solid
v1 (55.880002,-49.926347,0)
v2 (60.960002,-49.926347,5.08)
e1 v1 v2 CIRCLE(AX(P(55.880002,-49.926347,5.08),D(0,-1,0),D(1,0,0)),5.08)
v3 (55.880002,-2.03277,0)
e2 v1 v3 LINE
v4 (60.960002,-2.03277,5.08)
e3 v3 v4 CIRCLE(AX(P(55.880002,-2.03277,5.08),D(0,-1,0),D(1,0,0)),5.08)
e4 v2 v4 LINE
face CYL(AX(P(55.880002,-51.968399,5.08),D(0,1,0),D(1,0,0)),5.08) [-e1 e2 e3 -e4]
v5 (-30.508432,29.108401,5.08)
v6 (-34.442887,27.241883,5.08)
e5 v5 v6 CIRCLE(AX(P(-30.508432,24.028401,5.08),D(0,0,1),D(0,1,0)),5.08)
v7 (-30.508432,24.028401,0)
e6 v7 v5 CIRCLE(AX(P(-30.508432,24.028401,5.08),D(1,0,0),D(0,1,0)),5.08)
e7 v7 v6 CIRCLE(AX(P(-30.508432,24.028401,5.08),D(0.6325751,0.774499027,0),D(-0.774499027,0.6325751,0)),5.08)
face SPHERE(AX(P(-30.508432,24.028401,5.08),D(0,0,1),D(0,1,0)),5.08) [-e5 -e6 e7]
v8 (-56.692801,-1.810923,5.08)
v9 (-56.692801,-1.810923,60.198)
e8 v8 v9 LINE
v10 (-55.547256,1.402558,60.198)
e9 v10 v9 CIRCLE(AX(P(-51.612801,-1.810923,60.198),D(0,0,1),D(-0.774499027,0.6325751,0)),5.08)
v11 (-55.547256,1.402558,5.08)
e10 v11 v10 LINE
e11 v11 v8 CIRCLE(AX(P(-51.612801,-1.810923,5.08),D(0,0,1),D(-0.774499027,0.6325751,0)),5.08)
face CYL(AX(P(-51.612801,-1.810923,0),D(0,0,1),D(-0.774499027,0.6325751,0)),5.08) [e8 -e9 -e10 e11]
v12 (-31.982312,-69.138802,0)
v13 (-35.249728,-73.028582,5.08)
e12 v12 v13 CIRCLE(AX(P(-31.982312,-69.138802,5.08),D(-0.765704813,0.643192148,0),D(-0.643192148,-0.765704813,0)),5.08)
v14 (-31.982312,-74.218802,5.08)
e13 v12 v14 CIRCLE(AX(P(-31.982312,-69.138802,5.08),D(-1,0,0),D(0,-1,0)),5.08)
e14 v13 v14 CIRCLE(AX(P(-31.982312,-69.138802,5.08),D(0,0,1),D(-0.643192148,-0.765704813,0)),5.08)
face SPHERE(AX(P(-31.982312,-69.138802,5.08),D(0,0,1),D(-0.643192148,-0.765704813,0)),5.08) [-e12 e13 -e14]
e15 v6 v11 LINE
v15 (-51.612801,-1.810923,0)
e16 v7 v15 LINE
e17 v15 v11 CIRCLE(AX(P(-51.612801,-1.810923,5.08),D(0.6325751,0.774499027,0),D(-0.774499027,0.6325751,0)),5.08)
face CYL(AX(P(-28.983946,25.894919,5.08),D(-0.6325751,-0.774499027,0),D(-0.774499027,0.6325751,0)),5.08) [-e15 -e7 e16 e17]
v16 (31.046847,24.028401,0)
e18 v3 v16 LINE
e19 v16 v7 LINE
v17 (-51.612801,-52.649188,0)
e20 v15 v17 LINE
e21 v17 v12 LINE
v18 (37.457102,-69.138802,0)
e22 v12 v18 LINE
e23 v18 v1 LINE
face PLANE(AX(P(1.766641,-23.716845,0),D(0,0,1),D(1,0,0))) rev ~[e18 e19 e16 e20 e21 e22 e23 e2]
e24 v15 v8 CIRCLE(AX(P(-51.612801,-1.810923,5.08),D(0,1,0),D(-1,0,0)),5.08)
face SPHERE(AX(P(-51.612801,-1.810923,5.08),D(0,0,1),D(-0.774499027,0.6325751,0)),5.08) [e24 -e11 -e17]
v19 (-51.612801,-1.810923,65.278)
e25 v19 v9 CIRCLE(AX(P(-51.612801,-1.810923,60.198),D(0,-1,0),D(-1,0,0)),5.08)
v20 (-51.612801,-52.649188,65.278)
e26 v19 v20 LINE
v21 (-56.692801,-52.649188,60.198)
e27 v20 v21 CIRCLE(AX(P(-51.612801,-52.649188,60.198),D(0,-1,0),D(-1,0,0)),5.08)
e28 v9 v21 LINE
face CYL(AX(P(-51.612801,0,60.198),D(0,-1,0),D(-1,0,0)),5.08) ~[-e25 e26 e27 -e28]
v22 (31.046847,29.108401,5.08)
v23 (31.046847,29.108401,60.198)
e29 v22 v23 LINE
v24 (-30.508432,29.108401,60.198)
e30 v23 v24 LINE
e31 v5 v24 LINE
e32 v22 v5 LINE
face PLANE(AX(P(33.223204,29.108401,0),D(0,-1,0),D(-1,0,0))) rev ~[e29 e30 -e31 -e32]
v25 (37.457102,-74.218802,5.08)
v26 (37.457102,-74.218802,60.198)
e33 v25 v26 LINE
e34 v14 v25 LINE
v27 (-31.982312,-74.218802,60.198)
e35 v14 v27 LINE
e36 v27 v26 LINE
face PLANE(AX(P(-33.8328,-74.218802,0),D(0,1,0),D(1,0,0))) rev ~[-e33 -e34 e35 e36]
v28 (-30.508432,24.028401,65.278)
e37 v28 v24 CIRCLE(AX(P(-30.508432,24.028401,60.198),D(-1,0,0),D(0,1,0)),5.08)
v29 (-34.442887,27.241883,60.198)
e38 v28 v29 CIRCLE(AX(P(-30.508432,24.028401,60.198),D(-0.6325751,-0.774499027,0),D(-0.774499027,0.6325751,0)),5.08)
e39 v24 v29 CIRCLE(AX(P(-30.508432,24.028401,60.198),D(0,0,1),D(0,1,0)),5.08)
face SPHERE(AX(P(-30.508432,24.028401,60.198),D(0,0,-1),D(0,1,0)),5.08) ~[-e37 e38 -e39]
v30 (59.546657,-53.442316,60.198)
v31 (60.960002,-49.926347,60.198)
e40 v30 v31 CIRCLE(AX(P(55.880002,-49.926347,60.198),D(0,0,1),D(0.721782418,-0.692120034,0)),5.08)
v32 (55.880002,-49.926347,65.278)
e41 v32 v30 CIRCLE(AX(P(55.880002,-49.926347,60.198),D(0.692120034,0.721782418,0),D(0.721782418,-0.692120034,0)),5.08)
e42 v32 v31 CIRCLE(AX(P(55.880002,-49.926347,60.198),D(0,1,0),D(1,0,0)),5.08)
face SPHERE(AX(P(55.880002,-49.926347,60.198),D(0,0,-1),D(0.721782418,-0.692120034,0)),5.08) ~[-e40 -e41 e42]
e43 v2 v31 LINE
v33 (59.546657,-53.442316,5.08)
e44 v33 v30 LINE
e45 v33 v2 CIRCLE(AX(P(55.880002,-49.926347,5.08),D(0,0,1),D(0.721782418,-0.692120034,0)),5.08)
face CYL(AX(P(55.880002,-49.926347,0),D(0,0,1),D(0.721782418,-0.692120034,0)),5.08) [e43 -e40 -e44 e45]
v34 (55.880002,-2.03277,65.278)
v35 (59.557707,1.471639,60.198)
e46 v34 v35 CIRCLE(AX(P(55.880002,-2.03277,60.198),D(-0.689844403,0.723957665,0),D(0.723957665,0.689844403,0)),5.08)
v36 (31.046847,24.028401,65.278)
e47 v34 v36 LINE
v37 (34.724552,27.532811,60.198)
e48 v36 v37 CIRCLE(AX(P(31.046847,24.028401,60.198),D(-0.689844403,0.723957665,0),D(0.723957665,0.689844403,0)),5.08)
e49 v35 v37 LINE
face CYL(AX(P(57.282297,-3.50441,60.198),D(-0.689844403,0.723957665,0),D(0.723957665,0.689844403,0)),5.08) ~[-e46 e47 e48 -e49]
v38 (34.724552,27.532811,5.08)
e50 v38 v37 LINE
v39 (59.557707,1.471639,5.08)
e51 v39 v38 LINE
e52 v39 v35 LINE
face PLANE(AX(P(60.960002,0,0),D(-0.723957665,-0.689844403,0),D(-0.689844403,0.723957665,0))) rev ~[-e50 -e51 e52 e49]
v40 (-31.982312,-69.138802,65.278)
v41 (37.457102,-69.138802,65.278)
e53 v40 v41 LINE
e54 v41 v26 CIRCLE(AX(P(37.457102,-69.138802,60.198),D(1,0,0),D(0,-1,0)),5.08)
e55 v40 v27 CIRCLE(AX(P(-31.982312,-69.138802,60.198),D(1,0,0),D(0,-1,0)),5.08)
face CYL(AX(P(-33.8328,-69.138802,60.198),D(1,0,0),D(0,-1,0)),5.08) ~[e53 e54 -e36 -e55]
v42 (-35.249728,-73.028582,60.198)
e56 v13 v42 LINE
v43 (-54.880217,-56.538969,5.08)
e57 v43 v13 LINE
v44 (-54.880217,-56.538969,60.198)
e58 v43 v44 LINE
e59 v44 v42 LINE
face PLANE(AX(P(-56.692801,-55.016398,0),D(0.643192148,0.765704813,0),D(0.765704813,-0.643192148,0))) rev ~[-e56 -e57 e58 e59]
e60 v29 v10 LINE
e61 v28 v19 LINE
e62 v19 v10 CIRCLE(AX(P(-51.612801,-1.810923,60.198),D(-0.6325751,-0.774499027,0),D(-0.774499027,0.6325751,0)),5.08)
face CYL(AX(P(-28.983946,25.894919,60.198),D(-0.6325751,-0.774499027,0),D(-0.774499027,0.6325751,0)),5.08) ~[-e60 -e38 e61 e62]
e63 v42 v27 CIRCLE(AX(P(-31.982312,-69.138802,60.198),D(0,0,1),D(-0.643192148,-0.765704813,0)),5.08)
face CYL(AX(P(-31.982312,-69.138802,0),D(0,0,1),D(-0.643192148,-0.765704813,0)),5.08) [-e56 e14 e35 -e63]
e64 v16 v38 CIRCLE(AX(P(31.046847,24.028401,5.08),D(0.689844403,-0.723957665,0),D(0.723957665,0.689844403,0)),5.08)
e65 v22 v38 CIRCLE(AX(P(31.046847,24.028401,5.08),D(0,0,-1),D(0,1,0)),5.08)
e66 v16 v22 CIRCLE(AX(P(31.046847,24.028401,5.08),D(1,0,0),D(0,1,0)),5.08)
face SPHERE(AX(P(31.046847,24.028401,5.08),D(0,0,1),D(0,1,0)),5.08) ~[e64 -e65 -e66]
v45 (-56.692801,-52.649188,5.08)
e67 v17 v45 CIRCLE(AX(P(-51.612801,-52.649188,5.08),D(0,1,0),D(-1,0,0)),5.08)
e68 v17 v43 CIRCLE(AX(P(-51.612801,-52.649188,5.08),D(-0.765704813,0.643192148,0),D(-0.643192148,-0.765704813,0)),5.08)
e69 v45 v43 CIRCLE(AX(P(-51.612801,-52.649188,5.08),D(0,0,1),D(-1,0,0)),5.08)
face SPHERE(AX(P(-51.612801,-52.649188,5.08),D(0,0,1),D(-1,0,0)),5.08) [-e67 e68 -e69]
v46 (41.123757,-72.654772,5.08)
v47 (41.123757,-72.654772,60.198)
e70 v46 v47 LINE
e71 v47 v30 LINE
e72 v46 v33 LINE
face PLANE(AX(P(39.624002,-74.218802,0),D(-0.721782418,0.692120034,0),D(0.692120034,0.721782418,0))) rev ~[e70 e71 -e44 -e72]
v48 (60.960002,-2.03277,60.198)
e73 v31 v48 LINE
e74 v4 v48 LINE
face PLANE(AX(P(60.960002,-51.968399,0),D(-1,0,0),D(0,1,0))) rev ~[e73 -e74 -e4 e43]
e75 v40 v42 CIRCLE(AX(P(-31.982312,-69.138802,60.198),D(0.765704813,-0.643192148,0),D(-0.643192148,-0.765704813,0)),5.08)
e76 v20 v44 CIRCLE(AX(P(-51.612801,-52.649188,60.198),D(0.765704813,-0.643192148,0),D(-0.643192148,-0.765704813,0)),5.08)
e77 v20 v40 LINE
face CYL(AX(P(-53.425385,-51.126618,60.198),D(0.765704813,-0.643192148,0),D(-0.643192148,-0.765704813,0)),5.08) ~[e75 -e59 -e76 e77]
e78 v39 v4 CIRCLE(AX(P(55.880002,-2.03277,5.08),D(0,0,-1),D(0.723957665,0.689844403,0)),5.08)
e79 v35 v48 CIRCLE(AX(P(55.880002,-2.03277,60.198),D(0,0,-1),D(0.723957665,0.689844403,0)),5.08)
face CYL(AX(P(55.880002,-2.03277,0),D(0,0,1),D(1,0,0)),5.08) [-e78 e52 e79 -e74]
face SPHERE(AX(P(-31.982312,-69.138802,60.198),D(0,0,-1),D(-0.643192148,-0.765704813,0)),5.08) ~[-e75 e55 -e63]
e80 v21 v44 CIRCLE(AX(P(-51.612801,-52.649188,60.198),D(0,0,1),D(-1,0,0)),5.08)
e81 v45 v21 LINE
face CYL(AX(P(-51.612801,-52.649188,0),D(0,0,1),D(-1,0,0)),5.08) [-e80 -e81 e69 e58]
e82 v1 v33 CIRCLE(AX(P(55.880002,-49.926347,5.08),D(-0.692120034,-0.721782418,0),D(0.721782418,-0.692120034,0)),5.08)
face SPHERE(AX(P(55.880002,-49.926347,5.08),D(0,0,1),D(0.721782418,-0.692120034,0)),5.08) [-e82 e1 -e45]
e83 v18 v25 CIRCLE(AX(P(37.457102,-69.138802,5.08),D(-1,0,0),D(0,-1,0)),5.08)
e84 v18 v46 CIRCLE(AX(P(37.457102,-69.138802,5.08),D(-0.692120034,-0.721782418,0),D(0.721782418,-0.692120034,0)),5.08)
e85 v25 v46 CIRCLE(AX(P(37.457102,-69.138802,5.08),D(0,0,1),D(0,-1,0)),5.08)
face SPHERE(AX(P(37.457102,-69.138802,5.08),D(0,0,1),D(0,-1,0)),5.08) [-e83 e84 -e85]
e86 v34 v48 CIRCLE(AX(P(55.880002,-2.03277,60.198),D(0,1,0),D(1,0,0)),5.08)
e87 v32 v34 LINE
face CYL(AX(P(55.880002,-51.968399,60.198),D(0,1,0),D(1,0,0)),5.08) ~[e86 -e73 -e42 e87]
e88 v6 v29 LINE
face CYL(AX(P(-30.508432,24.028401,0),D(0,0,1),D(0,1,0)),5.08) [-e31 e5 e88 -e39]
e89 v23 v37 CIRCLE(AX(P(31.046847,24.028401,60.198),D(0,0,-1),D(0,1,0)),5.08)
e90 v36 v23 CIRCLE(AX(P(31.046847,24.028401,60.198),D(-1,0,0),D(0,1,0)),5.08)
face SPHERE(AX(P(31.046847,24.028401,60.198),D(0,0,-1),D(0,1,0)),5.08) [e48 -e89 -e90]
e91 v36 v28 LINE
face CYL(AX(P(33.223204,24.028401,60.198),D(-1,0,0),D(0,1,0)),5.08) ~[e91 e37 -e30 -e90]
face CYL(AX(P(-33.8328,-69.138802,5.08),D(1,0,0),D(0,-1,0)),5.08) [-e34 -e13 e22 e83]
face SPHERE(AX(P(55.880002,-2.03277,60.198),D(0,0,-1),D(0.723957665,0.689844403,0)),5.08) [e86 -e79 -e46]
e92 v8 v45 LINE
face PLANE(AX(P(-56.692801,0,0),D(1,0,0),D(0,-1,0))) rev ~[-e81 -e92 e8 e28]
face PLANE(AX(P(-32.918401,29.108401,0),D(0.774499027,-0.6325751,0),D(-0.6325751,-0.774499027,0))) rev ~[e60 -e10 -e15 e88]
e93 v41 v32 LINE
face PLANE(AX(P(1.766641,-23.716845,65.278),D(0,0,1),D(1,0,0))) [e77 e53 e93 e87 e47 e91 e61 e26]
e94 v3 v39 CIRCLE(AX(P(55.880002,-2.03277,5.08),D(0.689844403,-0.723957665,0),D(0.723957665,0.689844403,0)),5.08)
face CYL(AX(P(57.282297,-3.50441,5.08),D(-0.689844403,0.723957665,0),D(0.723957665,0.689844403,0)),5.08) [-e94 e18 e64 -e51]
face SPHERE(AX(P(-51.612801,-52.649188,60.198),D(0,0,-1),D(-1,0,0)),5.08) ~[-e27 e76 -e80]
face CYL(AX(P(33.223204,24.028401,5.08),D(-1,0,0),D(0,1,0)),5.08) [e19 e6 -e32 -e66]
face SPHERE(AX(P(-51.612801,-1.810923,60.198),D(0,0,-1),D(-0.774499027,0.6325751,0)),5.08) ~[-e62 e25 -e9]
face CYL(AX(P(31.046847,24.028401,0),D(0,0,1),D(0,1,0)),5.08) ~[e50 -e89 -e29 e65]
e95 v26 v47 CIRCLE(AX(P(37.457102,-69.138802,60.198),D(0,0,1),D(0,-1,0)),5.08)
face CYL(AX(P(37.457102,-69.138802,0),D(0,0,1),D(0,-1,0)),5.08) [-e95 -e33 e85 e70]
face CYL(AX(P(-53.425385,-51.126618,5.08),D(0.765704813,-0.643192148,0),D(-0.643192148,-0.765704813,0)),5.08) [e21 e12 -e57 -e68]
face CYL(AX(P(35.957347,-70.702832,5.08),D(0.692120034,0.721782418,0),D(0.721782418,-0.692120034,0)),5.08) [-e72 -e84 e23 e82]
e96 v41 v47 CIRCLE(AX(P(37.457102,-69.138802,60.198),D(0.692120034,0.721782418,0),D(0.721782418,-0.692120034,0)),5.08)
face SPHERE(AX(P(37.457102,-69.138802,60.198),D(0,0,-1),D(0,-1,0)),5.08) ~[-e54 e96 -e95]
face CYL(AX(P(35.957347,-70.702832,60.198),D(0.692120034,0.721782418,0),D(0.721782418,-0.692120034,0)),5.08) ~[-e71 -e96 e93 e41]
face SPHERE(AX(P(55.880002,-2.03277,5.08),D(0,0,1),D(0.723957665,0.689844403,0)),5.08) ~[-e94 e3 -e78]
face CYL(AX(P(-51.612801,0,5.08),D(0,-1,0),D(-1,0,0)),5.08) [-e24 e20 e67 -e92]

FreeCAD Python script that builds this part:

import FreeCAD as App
import Part
import Sketcher
from FreeCAD import Vector
Q = App.Units.Quantity


def add_polygon(sketch, points):
    """Adds a closed chain of lines whose ends are joined by coincident constraints."""
    first, n = sketch.GeometryCount, len(points)
    for a, b in zip(points, points[1:] + points[:1]):
        sketch.addGeometry(Part.LineSegment(App.Vector(*a, 0), App.Vector(*b, 0)), False)
    for i in range(n):
        sketch.addConstraint(Sketcher.Constraint("Coincident", first + i, 2, first + (i + 1) % n, 1))

doc = App.newDocument("Part")
body = doc.addObject("PartDesign::Body", "Body")

# Sketch on XY plane
sketch1 = doc.addObject("Sketcher::SketchObject", "Sketch")
body.addObject(sketch1)
sketch1.AttachmentSupport = (doc.XY_Plane, [""])
sketch1.MapMode = "FlatFace"
add_polygon(sketch1, [(33.223204, 29.108401), (-32.918401, 29.108401), (-56.692801, 0), (-56.692801, -55.016398), (-33.8328, -74.218802), (39.624002, -74.218802), (60.960002, -51.968399), (60.960002, 0)])  # lines 0-7
sketch1.addConstraint(Sketcher.Constraint("Horizontal", 0))
sketch1.addConstraint(Sketcher.Constraint("Vertical", 2))
sketch1.addConstraint(Sketcher.Constraint("Horizontal", 4))
sketch1.addConstraint(Sketcher.Constraint("Vertical", 6))
sketch1.addConstraint(Sketcher.Constraint("PointOnObject", 1, 2, -1))
sketch1.addConstraint(Sketcher.Constraint("PointOnObject", 6, 2, -1))
sketch1.addConstraint(Sketcher.Constraint("DistanceX", -1, 1, 5, 2, Q("2.4000001 in")))
sketch1.addConstraint(Sketcher.Constraint("DistanceX", 2, 2, 3, 2, Q("0.9 in")))
sketch1.addConstraint(Sketcher.Constraint("DistanceX", 0, 2, 0, 1, Q("2.6040002 in")))
sketch1.addConstraint(Sketcher.Constraint("DistanceX", 4, 1, 4, 2, Q("2.8920001 in")))
sketch1.addConstraint(Sketcher.Constraint("DistanceY", 2, 2, 2, 1, Q("2.1659999 in")))
sketch1.addConstraint(Sketcher.Constraint("DistanceY", 6, 1, 6, 2, Q("2.046 in")))
sketch1.addConstraint(Sketcher.Constraint("DistanceX", -1, 1, 4, 2, Q("1.5600001 in")))
sketch1.addConstraint(Sketcher.Constraint("DistanceX", 1, 2, 7, 2, Q("3.5400002 in")))
sketch1.addConstraint(Sketcher.Constraint("DistanceY", -1, 1, 0, 2, Q("1.146 in")))
sketch1.addConstraint(Sketcher.Constraint("DistanceY", 3, 2, -1, 1, Q("2.9220001 in")))
pad1 = doc.addObject("PartDesign::Pad", "Pad")
body.addObject(pad1)
pad1.Profile = sketch1
pad1.Length = Q("2.57 in")
doc.recompute()

fillet = doc.addObject("PartDesign::Fillet", "Fillet")
body.addObject(fillet)
fillet.Base = (pad1, ["Edge1"])
fillet.UseAllEdges = True
fillet.Radius = Q("0.2 in")

doc.recompute()
